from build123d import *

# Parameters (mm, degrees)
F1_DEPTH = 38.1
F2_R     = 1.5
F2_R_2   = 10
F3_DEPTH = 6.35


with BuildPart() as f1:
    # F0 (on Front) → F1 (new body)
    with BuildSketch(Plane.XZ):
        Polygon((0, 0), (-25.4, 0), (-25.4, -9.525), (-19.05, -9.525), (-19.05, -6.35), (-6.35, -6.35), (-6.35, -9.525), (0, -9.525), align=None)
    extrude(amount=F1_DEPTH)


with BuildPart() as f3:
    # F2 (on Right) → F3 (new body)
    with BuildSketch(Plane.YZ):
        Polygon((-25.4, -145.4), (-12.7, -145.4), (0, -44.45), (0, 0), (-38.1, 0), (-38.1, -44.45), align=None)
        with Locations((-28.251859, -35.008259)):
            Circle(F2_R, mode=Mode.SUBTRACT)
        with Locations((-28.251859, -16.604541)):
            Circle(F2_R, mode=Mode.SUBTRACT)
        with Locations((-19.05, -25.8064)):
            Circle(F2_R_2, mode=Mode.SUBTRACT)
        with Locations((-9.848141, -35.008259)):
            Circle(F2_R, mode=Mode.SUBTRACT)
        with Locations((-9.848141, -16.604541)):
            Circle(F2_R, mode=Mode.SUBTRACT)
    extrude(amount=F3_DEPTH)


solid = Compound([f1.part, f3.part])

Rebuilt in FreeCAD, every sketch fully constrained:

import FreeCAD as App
import Part
import Sketcher
Q = App.Units.Quantity


def add_polygon(sketch, points):
    """Adds a closed chain of lines whose ends are joined by coincident constraints."""
    first, n = sketch.GeometryCount, len(points)
    for a, b in zip(points, points[1:] + points[:1]):
        sketch.addGeometry(Part.LineSegment(App.Vector(*a, 0), App.Vector(*b, 0)), False)
    for i in range(n):
        sketch.addConstraint(Sketcher.Constraint("Coincident", first + i, 2, first + (i + 1) % n, 1))

doc = App.newDocument("Part")
params = doc.addObject("Spreadsheet::Sheet", "Params")
for row, (alias, value) in enumerate([
    ("sketch1_width", "1 in"),
    ("sketch1_width2", "0.5 in"),
    ("sketch1_height", "0.375 in"),
    ("sketch1_height2", "0.125 in"),
    ("pad1_length", "1.5 in"),
    ("sketch2_width", "0.5 in"),
    ("sketch2_width2", "1.5 in"),
    ("sketch2_height", "1.75 in"),
    ("pad2_length", "0.25 in"),
], start=1):
    params.set(f"A{row}", alias)
    params.set(f"B{row}", "=" + value)
    params.setAlias(f"B{row}", alias)

body = doc.addObject("PartDesign::Body", "Body")

sketch1 = body.newObject("Sketcher::SketchObject", "Sketch")
sketch1.AttachmentSupport = (doc.getObject("XZ_Plane"), [""])
sketch1.MapMode = "FlatFace"
add_polygon(sketch1, [(0, 0), (-25.4, 0), (-25.4, -9.5), (-19.1, -9.5), (-19.1, -6.3), (-6.3, -6.3), (-6.3, -9.5), (0, -9.5)])
sketch1.addConstraint([
    Sketcher.Constraint("Horizontal", 0),
    Sketcher.Constraint("Vertical", 1),
    Sketcher.Constraint("Horizontal", 2),
    Sketcher.Constraint("Vertical", 3),
    Sketcher.Constraint("Horizontal", 4),
    Sketcher.Constraint("Vertical", 5),
    Sketcher.Constraint("Horizontal", 6),
    Sketcher.Constraint("Vertical", 7),
    Sketcher.Constraint("Coincident", 7, 2, -1, 1),
    Sketcher.Constraint("Horizontal", 2, 2, 5, 2),
    Sketcher.Constraint("Equal", 2, 6),
    Sketcher.Constraint("DistanceX", 0, 2, 0, 1, Q("1 in")),
    Sketcher.Constraint("DistanceX", 4, 1, 4, 2, Q("0.5 in")),
    Sketcher.Constraint("DistanceY", 1, 2, 1, 1, Q("0.375 in")),
    Sketcher.Constraint("DistanceY", 3, 1, 3, 2, Q("0.125 in")),
])
sketch1.setExpression("Constraints[19]", "Params.sketch1_width")
sketch1.setExpression("Constraints[20]", "Params.sketch1_width2")
sketch1.setExpression("Constraints[21]", "Params.sketch1_height")
sketch1.setExpression("Constraints[22]", "Params.sketch1_height2")
pad1 = body.newObject("PartDesign::Pad", "Pad")
pad1.Profile = sketch1
pad1.setExpression("Length", "Params.pad1_length")
body2 = doc.addObject("PartDesign::Body", "Body001")

sketch2 = body2.newObject("Sketcher::SketchObject", "Sketch001")
sketch2.AttachmentSupport = (doc.getObject("YZ_Plane001"), [""])
sketch2.MapMode = "FlatFace"
add_polygon(sketch2, [(-25.4, -145.4), (-12.7, -145.4), (0, -44.5), (0, 0), (-38.1, 0), (-38.1, -44.5)])
sketch2.addGeometry(Part.Circle(App.Vector(-28.3, -35, 0), App.Vector(0, 0, 1), 1.5), False)
sketch2.addGeometry(Part.Circle(App.Vector(-9.8, -35, 0), App.Vector(0, 0, 1), 1.5), False)
sketch2.addGeometry(Part.Circle(App.Vector(-28.3, -16.6, 0), App.Vector(0, 0, 1), 1.5), False)
sketch2.addGeometry(Part.Circle(App.Vector(-19.1, -25.8, 0), App.Vector(0, 0, 1), 10), False)
sketch2.addGeometry(Part.Circle(App.Vector(-9.8, -16.6, 0), App.Vector(0, 0, 1), 1.5), False)
sketch2.addConstraint([
    Sketcher.Constraint("Horizontal", 0),
    Sketcher.Constraint("Vertical", 2),
    Sketcher.Constraint("Horizontal", 3),
    Sketcher.Constraint("Vertical", 4),
    Sketcher.Constraint("Coincident", 2, 2, -1, 1),
    Sketcher.Constraint("Equal", 6, 7),
    Sketcher.Constraint("Equal", 7, 8),
    Sketcher.Constraint("Equal", 8, 10),
    Sketcher.Constraint("Horizontal", 6, 3, 7, 3),
    Sketcher.Constraint("Horizontal", 8, 3, 10, 3),
    Sketcher.Constraint("Horizontal", 1, 2, 4, 2),
    Sketcher.Constraint("Vertical", 6, 3, 8, 3),
    Sketcher.Constraint("Vertical", 7, 3, 10, 3),
    Sketcher.Constraint("Equal", 1, 5),
    Sketcher.Constraint("DistanceX", 0, 1, 0, 2, Q("0.5 in")),
    Sketcher.Constraint("DistanceX", 3, 2, 3, 1, Q("1.5 in")),
    Sketcher.Constraint("DistanceY", 2, 1, 2, 2, Q("1.75 in")),
    Sketcher.Constraint("Diameter", 6, 3.0),
    Sketcher.Constraint("Diameter", 9, 20.0),
    Sketcher.Constraint("DistanceX", 9, 3, -1, 1, Q("0.75 in")),
    Sketcher.Constraint("DistanceY", 9, 3, -1, 1, Q("1.016 in")),
    Sketcher.Constraint("DistanceY", 0, 2, -1, 1, 145.4),
    Sketcher.Constraint("DistanceX", 6, 3, -1, 1, 28.251859),
    Sketcher.Constraint("DistanceY", 6, 3, -1, 1, 35.008259),
    Sketcher.Constraint("DistanceX", 7, 3, -1, 1, 9.848141),
    Sketcher.Constraint("DistanceY", 8, 3, -1, 1, 16.604541),
])
sketch2.setExpression("Constraints[20]", "Params.sketch2_width")
sketch2.setExpression("Constraints[21]", "Params.sketch2_width2")
sketch2.setExpression("Constraints[22]", "Params.sketch2_height")
pad2 = body2.newObject("PartDesign::Pad", "Pad001")
pad2.Profile = sketch2
pad2.setExpression("Length", "Params.pad2_length")

doc.recompute()
